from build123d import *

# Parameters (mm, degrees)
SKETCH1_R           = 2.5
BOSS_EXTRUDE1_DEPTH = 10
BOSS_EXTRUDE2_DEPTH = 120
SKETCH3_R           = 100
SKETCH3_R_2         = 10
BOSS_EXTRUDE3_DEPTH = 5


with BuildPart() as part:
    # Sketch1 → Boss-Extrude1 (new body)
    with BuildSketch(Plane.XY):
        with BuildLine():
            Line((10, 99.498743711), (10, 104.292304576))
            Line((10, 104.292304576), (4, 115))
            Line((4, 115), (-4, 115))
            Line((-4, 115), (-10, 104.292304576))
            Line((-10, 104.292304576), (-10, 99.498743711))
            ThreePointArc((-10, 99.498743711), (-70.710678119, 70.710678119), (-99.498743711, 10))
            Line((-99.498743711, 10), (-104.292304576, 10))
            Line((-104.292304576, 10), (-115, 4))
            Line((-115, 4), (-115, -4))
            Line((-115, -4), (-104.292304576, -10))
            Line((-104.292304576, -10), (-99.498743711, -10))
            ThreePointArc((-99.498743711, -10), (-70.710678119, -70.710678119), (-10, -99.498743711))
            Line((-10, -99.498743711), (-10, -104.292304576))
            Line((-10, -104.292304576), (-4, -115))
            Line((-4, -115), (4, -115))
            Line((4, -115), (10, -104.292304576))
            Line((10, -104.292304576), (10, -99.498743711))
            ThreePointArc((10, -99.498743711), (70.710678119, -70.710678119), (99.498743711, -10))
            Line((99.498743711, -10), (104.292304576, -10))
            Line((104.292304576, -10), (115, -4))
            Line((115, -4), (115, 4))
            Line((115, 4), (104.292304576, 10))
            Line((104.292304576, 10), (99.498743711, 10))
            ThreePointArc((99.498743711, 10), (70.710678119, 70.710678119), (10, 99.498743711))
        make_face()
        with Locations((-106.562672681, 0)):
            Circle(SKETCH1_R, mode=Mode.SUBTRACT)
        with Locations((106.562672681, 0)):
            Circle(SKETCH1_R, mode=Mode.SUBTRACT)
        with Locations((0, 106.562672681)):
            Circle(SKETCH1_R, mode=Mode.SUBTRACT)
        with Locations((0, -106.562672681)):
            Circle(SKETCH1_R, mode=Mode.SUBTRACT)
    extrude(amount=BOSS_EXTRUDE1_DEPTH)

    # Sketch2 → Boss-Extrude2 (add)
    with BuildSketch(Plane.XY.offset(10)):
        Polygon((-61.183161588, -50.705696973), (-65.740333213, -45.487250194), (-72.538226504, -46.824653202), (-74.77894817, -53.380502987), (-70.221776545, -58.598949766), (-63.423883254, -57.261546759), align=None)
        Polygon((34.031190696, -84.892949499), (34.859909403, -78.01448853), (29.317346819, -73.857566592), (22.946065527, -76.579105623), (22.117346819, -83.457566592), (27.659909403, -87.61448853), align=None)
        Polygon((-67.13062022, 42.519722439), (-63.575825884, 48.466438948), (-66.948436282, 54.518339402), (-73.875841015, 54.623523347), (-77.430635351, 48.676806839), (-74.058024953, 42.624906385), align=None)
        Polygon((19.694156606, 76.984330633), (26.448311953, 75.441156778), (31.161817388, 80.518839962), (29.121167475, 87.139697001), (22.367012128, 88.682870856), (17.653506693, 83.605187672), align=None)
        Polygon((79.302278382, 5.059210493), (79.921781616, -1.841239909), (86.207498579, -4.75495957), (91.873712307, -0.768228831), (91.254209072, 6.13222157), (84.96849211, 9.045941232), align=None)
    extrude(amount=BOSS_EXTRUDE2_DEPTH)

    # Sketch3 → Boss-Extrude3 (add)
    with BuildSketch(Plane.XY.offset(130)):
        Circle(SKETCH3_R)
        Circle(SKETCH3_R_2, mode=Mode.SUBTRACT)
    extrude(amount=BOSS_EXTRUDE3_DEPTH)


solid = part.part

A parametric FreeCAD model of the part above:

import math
import FreeCAD as App
import Part
import Sketcher

V = App.Vector

doc = App.newDocument("Part")
body = doc.addObject("PartDesign::Body", "Body")

sketch1 = body.newObject("Sketcher::SketchObject", "Sketch")
sketch1.AttachmentSupport = (doc.getObject("XY_Plane"), [""])
sketch1.MapMode = "FlatFace"
sketch1.addGeometry([
    Part.LineSegment(V(10, 99.5, 0), V(10, 104.3, 0)),
    Part.LineSegment(V(10, 104.3, 0), V(4, 115, 0)),
    Part.LineSegment(V(4, 115, 0), V(-4, 115, 0)),
    Part.LineSegment(V(-4, 115, 0), V(-10, 104.3, 0)),
    Part.LineSegment(V(-10, 104.3, 0), V(-10, 99.5, 0)),
    Part.ArcOfCircle(Part.Circle(V(0, 0, 0), V(0, 0, 1), 100), math.radians(96), math.radians(174)),
    Part.LineSegment(V(-99.5, 10, 0), V(-104.3, 10, 0)),
    Part.LineSegment(V(-104.3, 10, 0), V(-115, 4, 0)),
    Part.LineSegment(V(-115, 4, 0), V(-115, -4, 0)),
    Part.LineSegment(V(-115, -4, 0), V(-104.3, -10, 0)),
    Part.LineSegment(V(-104.3, -10, 0), V(-99.5, -10, 0)),
    Part.ArcOfCircle(Part.Circle(V(0, 0, 0), V(0, 0, 1), 100), math.radians(-174), math.radians(-96)),
    Part.LineSegment(V(-10, -99.5, 0), V(-10, -104.3, 0)),
    Part.LineSegment(V(-10, -104.3, 0), V(-4, -115, 0)),
    Part.LineSegment(V(-4, -115, 0), V(4, -115, 0)),
    Part.LineSegment(V(4, -115, 0), V(10, -104.3, 0)),
    Part.LineSegment(V(10, -104.3, 0), V(10, -99.5, 0)),
    Part.ArcOfCircle(Part.Circle(V(0, 0, 0), V(0, 0, 1), 100), math.radians(-84), math.radians(-6)),
    Part.LineSegment(V(99.5, -10, 0), V(104.3, -10, 0)),
    Part.LineSegment(V(104.3, -10, 0), V(115, -4, 0)),
    Part.LineSegment(V(115, -4, 0), V(115, 4, 0)),
    Part.LineSegment(V(115, 4, 0), V(104.3, 10, 0)),
    Part.LineSegment(V(104.3, 10, 0), V(99.5, 10, 0)),
    Part.ArcOfCircle(Part.Circle(V(0, 0, 0), V(0, 0, 1), 100), math.radians(6), math.radians(84)),
    Part.Circle(V(0, -106.6, 0), V(0, 0, 1), 2.5),
    Part.Circle(V(-106.6, 0, 0), V(0, 0, 1), 2.5),
    Part.Circle(V(106.6, 0, 0), V(0, 0, 1), 2.5),
    Part.Circle(V(0, 106.6, 0), V(0, 0, 1), 2.5),
], False)
sketch1.addConstraint([
    Sketcher.Constraint("Coincident", 0, 2, 1, 1),
    Sketcher.Constraint("Coincident", 1, 2, 2, 1),
    Sketcher.Constraint("Coincident", 2, 2, 3, 1),
    Sketcher.Constraint("Coincident", 3, 2, 4, 1),
    Sketcher.Constraint("Coincident", 4, 2, 5, 1),
    Sketcher.Constraint("Coincident", 5, 2, 6, 1),
    Sketcher.Constraint("Coincident", 6, 2, 7, 1),
    Sketcher.Constraint("Coincident", 7, 2, 8, 1),
    Sketcher.Constraint("Coincident", 8, 2, 9, 1),
    Sketcher.Constraint("Coincident", 9, 2, 10, 1),
    Sketcher.Constraint("Coincident", 10, 2, 11, 1),
    Sketcher.Constraint("Coincident", 11, 2, 12, 1),
    Sketcher.Constraint("Coincident", 12, 2, 13, 1),
    Sketcher.Constraint("Coincident", 13, 2, 14, 1),
    Sketcher.Constraint("Coincident", 14, 2, 15, 1),
    Sketcher.Constraint("Coincident", 15, 2, 16, 1),
    Sketcher.Constraint("Coincident", 16, 2, 17, 1),
    Sketcher.Constraint("Coincident", 17, 2, 18, 1),
    Sketcher.Constraint("Coincident", 18, 2, 19, 1),
    Sketcher.Constraint("Coincident", 19, 2, 20, 1),
    Sketcher.Constraint("Coincident", 20, 2, 21, 1),
    Sketcher.Constraint("Coincident", 21, 2, 22, 1),
    Sketcher.Constraint("Coincident", 22, 2, 23, 1),
    Sketcher.Constraint("Coincident", 23, 2, 0, 1),
    Sketcher.Constraint("Vertical", 0),
    Sketcher.Constraint("Horizontal", 2),
    Sketcher.Constraint("Vertical", 4),
    Sketcher.Constraint("Horizontal", 6),
    Sketcher.Constraint("Vertical", 8),
    Sketcher.Constraint("Horizontal", 10),
    Sketcher.Constraint("Vertical", 12),
    Sketcher.Constraint("Horizontal", 14),
    Sketcher.Constraint("Vertical", 16),
    Sketcher.Constraint("Horizontal", 18),
    Sketcher.Constraint("Vertical", 20),
    Sketcher.Constraint("Horizontal", 22),
    Sketcher.Constraint("Coincident", 5, 3, -1, 1),
    Sketcher.Constraint("Coincident", 11, 3, -1, 1),
    Sketcher.Constraint("Coincident", 17, 3, -1, 1),
    Sketcher.Constraint("Coincident", 23, 3, -1, 1),
    Sketcher.Constraint("Equal", 5, 11),
    Sketcher.Constraint("Equal", 11, 17),
    Sketcher.Constraint("Equal", 17, 23),
    Sketcher.Constraint("Equal", 24, 25),
    Sketcher.Constraint("Equal", 25, 26),
    Sketcher.Constraint("Equal", 26, 27),
    Sketcher.Constraint("Symmetric", 25, 3, 26, 3, -1, 1),
    Sketcher.Constraint("Symmetric", 24, 3, 27, 3, -1, 1),
    Sketcher.Constraint("Symmetric", 0, 2, 12, 2, -1, 1),
    Sketcher.Constraint("Symmetric", 1, 2, 13, 2, -1, 1),
    Sketcher.Constraint("Symmetric", 3, 2, 15, 2, -1, 1),
    Sketcher.Constraint("Symmetric", 6, 2, 18, 2, -1, 1),
    Sketcher.Constraint("Symmetric", 7, 2, 19, 2, -1, 1),
    Sketcher.Constraint("Symmetric", 9, 2, 21, 2, -1, 1),
    Sketcher.Constraint("Symmetric", 0, 2, 3, 2, -2),
    Sketcher.Constraint("Symmetric", 9, 2, 18, 2, -2),
    Sketcher.Constraint("PointOnObject", 24, 3, -2),
    Sketcher.Constraint("PointOnObject", 25, 3, -1),
    Sketcher.Constraint("Perpendicular", 1, 7),
    Sketcher.Constraint("Perpendicular", 3, 9),
    Sketcher.Constraint("Perpendicular", 9, 15),
    Sketcher.Constraint("Perpendicular", 15, 21),
    Sketcher.Constraint("Horizontal", 8, 2, 19, 2),
    Sketcher.Constraint("Equal", 22, 0),
    Sketcher.Constraint("Equal", 14, 8),
    Sketcher.Constraint("Equal", 3, 7),
    Sketcher.Constraint("Diameter", 24, 5.0),
    Sketcher.Constraint("Radius", 5, 100.0),
    Sketcher.Constraint("DistanceX", 2, 2, 2, 1, 8.0),
    Sketcher.Constraint("DistanceX", -1, 1, 0, 2, 10.0),
    Sketcher.Constraint("DistanceY", -1, 1, 1, 2, 115.0),
    Sketcher.Constraint("DistanceX", 6, 2, 6, 1, 4.793561),
    Sketcher.Constraint("DistanceY", 0, 2, 27, 3, 2.270368),
    Sketcher.Constraint("DistanceX", 25, 3, 5, 2, 7.063929),
])
pad1 = body.newObject("PartDesign::Pad", "Pad")
pad1.Profile = sketch1
pad1.Length = 10

sketch2 = body.newObject("Sketcher::SketchObject", "Sketch001")
sketch2.AttachmentSupport = (doc.getObject("XY_Plane"), [""])
sketch2.MapMode = "FlatFace"
sketch2.AttachmentOffset = App.Placement(V(0, 0, 10), App.Rotation())
sketch2.addGeometry([
    Part.LineSegment(V(-61.183162, -50.705697, 0), V(-65.740333, -45.48725, 0)),
    Part.LineSegment(V(-65.740333, -45.48725, 0), V(-72.538227, -46.824653, 0)),
    Part.LineSegment(V(-72.538227, -46.824653, 0), V(-74.778948, -53.380503, 0)),
    Part.LineSegment(V(-74.778948, -53.380503, 0), V(-70.221777, -58.59895, 0)),
    Part.LineSegment(V(-70.221777, -58.59895, 0), V(-63.423883, -57.261547, 0)),
    Part.LineSegment(V(-63.423883, -57.261547, 0), V(-61.183162, -50.705697, 0)),
    Part.LineSegment(V(34.031191, -84.892949, 0), V(34.859909, -78.014489, 0)),
    Part.LineSegment(V(34.859909, -78.014489, 0), V(29.317347, -73.857567, 0)),
    Part.LineSegment(V(29.317347, -73.857567, 0), V(22.946066, -76.579106, 0)),
    Part.LineSegment(V(22.946066, -76.579106, 0), V(22.117347, -83.457567, 0)),
    Part.LineSegment(V(22.117347, -83.457567, 0), V(27.659909, -87.614489, 0)),
    Part.LineSegment(V(27.659909, -87.614489, 0), V(34.031191, -84.892949, 0)),
    Part.LineSegment(V(-67.13062, 42.519722, 0), V(-63.575826, 48.466439, 0)),
    Part.LineSegment(V(-63.575826, 48.466439, 0), V(-66.948436, 54.518339, 0)),
    Part.LineSegment(V(-66.948436, 54.518339, 0), V(-73.875841, 54.623523, 0)),
    Part.LineSegment(V(-73.875841, 54.623523, 0), V(-77.430635, 48.676807, 0)),
    Part.LineSegment(V(-77.430635, 48.676807, 0), V(-74.058025, 42.624906, 0)),
    Part.LineSegment(V(-74.058025, 42.624906, 0), V(-67.13062, 42.519722, 0)),
    Part.LineSegment(V(19.694157, 76.984331, 0), V(26.448312, 75.441157, 0)),
    Part.LineSegment(V(26.448312, 75.441157, 0), V(31.161817, 80.51884, 0)),
    Part.LineSegment(V(31.161817, 80.51884, 0), V(29.121167, 87.139697, 0)),
    Part.LineSegment(V(29.121167, 87.139697, 0), V(22.367012, 88.682871, 0)),
    Part.LineSegment(V(22.367012, 88.682871, 0), V(17.653507, 83.605188, 0)),
    Part.LineSegment(V(17.653507, 83.605188, 0), V(19.694157, 76.984331, 0)),
    Part.LineSegment(V(79.302278, 5.05921, 0), V(79.921782, -1.84124, 0)),
    Part.LineSegment(V(79.921782, -1.84124, 0), V(86.207499, -4.75496, 0)),
    Part.LineSegment(V(86.207499, -4.75496, 0), V(91.873712, -0.768229, 0)),
    Part.LineSegment(V(91.873712, -0.768229, 0), V(91.254209, 6.132222, 0)),
    Part.LineSegment(V(91.254209, 6.132222, 0), V(84.968492, 9.045941, 0)),
    Part.LineSegment(V(84.968492, 9.045941, 0), V(79.302278, 5.05921, 0)),
], False)
sketch2.addConstraint([
    Sketcher.Constraint("Coincident", 0, 2, 1, 1),
    Sketcher.Constraint("Coincident", 1, 2, 2, 1),
    Sketcher.Constraint("Coincident", 2, 2, 3, 1),
    Sketcher.Constraint("Coincident", 3, 2, 4, 1),
    Sketcher.Constraint("Coincident", 4, 2, 5, 1),
    Sketcher.Constraint("Coincident", 5, 2, 0, 1),
    Sketcher.Constraint("Coincident", 6, 2, 7, 1),
    Sketcher.Constraint("Coincident", 7, 2, 8, 1),
    Sketcher.Constraint("Coincident", 8, 2, 9, 1),
    Sketcher.Constraint("Coincident", 9, 2, 10, 1),
    Sketcher.Constraint("Coincident", 10, 2, 11, 1),
    Sketcher.Constraint("Coincident", 11, 2, 6, 1),
    Sketcher.Constraint("Coincident", 12, 2, 13, 1),
    Sketcher.Constraint("Coincident", 13, 2, 14, 1),
    Sketcher.Constraint("Coincident", 14, 2, 15, 1),
    Sketcher.Constraint("Coincident", 15, 2, 16, 1),
    Sketcher.Constraint("Coincident", 16, 2, 17, 1),
    Sketcher.Constraint("Coincident", 17, 2, 12, 1),
    Sketcher.Constraint("Coincident", 18, 2, 19, 1),
    Sketcher.Constraint("Coincident", 19, 2, 20, 1),
    Sketcher.Constraint("Coincident", 20, 2, 21, 1),
    Sketcher.Constraint("Coincident", 21, 2, 22, 1),
    Sketcher.Constraint("Coincident", 22, 2, 23, 1),
    Sketcher.Constraint("Coincident", 23, 2, 18, 1),
    Sketcher.Constraint("Coincident", 24, 2, 25, 1),
    Sketcher.Constraint("Coincident", 25, 2, 26, 1),
    Sketcher.Constraint("Coincident", 26, 2, 27, 1),
    Sketcher.Constraint("Coincident", 27, 2, 28, 1),
    Sketcher.Constraint("Coincident", 28, 2, 29, 1),
    Sketcher.Constraint("Coincident", 29, 2, 24, 1),
    Sketcher.Constraint("DistanceX", 9, 2, 7, 2, 7.2),
    Sketcher.Constraint("DistanceY", 9, 2, 7, 2, 9.6),
    Sketcher.Constraint("DistanceX", 10, 2, 6, 2, 7.2),
    Sketcher.Constraint("DistanceY", 10, 2, 6, 2, 9.6),
    Sketcher.Constraint("DistanceX", -1, 1, 25, 2, 86.207499),
    Sketcher.Constraint("DistanceY", 3, 2, 0, 2, 13.1117),
    Sketcher.Constraint("DistanceX", 0, 2, 8, 2, 88.686399),
    Sketcher.Constraint("DistanceX", 1, 2, 12, 2, 8.962401),
    Sketcher.Constraint("DistanceY", 12, 2, 13, 2, 6.0519),
    Sketcher.Constraint("DistanceX", 15, 2, 13, 2, 10.482199),
    Sketcher.Constraint("DistanceY", 16, 2, 15, 2, 6.0519),
    Sketcher.Constraint("DistanceX", 16, 2, 12, 2, 10.482199),
    Sketcher.Constraint("DistanceY", 17, 2, 14, 2, 12.103801),
    Sketcher.Constraint("DistanceY", 12, 2, 19, 2, 32.052401),
    Sketcher.Constraint("DistanceX", 21, 2, 18, 2, 4.0813),
    Sketcher.Constraint("DistanceX", 18, 2, 26, 2, 65.4254),
    Sketcher.Constraint("DistanceY", 25, 2, 28, 2, 13.800901),
    Sketcher.Constraint("DistanceY", 0, 2, -1, 1, 45.48725),
    Sketcher.Constraint("DistanceX", 2, 2, -1, 1, 74.778948),
    Sketcher.Constraint("DistanceX", 5, 2, -1, 1, 61.183162),
    Sketcher.Constraint("DistanceX", -1, 1, 6, 2, 34.859909),
    Sketcher.Constraint("DistanceY", 6, 2, -1, 1, 78.014489),
    Sketcher.Constraint("DistanceX", -1, 1, 11, 2, 34.031191),
    Sketcher.Constraint("DistanceY", 11, 2, -1, 1, 84.892949),
    Sketcher.Constraint("DistanceY", -1, 1, 12, 2, 48.466439),
    Sketcher.Constraint("DistanceX", 14, 2, -1, 1, 73.875841),
    Sketcher.Constraint("DistanceX", 17, 2, -1, 1, 67.13062),
    Sketcher.Constraint("DistanceX", -1, 1, 18, 2, 26.448312),
    Sketcher.Constraint("DistanceY", -1, 1, 21, 2, 88.682871),
    Sketcher.Constraint("DistanceY", -1, 1, 23, 2, 76.984331),
    Sketcher.Constraint("DistanceX", -1, 1, 24, 2, 79.921782),
    Sketcher.Constraint("DistanceY", 24, 2, -1, 1, 1.84124),
    Sketcher.Constraint("DistanceY", 25, 2, -1, 1, 4.75496),
    Sketcher.Constraint("DistanceY", 26, 2, -1, 1, 0.768229),
    Sketcher.Constraint("DistanceX", -1, 1, 27, 2, 91.254209),
    Sketcher.Constraint("DistanceY", -1, 1, 27, 2, 6.132222),
    Sketcher.Constraint("DistanceX", -1, 1, 29, 2, 79.302278),
    Sketcher.Constraint("DistanceY", -1, 1, 29, 2, 5.05921),
    Sketcher.Constraint("DistanceX", 2, 2, 1, 2, 2.240722),
    Sketcher.Constraint("DistanceY", 2, 2, 1, 2, 6.55585),
    Sketcher.Constraint("DistanceX", 2, 2, 3, 2, 4.557172),
    Sketcher.Constraint("DistanceX", 0, 2, 4, 2, 2.31645),
    Sketcher.Constraint("DistanceX", 4, 2, 5, 2, 2.240722),
    Sketcher.Constraint("DistanceY", 4, 2, 5, 2, 6.55585),
    Sketcher.Constraint("DistanceY", 6, 2, 5, 2, 27.308792),
    Sketcher.Constraint("DistanceY", 6, 2, 7, 2, 4.156922),
    Sketcher.Constraint("DistanceX", 5, 2, 7, 2, 90.500508),
    Sketcher.Constraint("DistanceY", 8, 2, 7, 2, 2.721539),
    Sketcher.Constraint("DistanceY", 2, 2, 12, 2, 101.846942),
    Sketcher.Constraint("DistanceX", 13, 2, 12, 2, 3.37261),
    Sketcher.Constraint("DistanceY", 5, 2, 14, 2, 105.32922),
    Sketcher.Constraint("DistanceY", 1, 2, 15, 2, 95.50146),
    Sketcher.Constraint("DistanceY", 16, 2, 18, 2, 32.81625),
    Sketcher.Constraint("DistanceX", 14, 2, 19, 2, 105.037658),
    Sketcher.Constraint("DistanceX", 20, 2, 19, 2, 2.04065),
    Sketcher.Constraint("DistanceY", 18, 2, 20, 2, 11.69854),
    Sketcher.Constraint("DistanceY", 18, 2, 22, 2, 8.164031),
    Sketcher.Constraint("DistanceX", 22, 2, 20, 2, 11.467661),
    Sketcher.Constraint("DistanceX", 22, 2, 23, 2, 2.04065),
    Sketcher.Constraint("DistanceX", 28, 2, 26, 2, 6.90522),
])
pad2 = body.newObject("PartDesign::Pad", "Pad001")
pad2.Profile = sketch2
pad2.Length = 120

sketch3 = body.newObject("Sketcher::SketchObject", "Sketch002")
sketch3.AttachmentSupport = (doc.getObject("XY_Plane"), [""])
sketch3.MapMode = "FlatFace"
sketch3.AttachmentOffset = App.Placement(V(0, 0, 130), App.Rotation())
sketch3.addGeometry([
    Part.Circle(V(0, 0, 0), V(0, 0, 1), 100),
    Part.Circle(V(0, 0, 0), V(0, 0, 1), 10),
], False)
sketch3.addConstraint([
    Sketcher.Constraint("Coincident", 0, 3, -1, 1),
    Sketcher.Constraint("Coincident", 1, 3, -1, 1),
    Sketcher.Constraint("Diameter", 0, 200.0),
    Sketcher.Constraint("Diameter", 1, 20.0),
])
pad3 = body.newObject("PartDesign::Pad", "Pad002")
pad3.Profile = sketch3
pad3.Length = 5

doc.recompute()
